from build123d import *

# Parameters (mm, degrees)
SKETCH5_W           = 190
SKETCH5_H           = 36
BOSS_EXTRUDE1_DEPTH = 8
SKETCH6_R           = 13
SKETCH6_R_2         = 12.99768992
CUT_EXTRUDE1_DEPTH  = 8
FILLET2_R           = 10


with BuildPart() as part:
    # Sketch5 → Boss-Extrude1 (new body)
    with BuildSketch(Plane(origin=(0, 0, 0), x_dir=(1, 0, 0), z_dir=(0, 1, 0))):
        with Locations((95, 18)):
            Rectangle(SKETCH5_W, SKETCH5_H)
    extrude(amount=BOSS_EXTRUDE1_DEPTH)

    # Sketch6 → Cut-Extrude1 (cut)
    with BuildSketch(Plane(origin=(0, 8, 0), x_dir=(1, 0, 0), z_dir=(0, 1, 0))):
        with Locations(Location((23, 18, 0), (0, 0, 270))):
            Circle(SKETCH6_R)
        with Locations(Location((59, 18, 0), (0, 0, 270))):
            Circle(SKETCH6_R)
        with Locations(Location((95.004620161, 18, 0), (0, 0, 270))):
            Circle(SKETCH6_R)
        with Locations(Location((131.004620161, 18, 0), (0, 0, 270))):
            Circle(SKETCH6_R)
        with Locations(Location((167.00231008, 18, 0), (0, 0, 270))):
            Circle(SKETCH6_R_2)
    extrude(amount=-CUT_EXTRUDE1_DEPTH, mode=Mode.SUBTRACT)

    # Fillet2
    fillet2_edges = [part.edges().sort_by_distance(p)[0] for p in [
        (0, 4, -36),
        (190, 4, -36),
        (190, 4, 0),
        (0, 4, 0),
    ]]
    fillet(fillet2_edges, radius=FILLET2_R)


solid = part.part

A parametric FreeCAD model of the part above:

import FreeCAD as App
import Part
import Sketcher
Q = App.Units.Quantity


def edges_at(feature, points):
    """Names of the edges that pass closest to the given points."""
    edges = feature.Shape.Edges
    near = lambda p: min(range(len(edges)), key=lambda i: edges[i].distToShape(Part.Vertex(*p))[0])
    return sorted({f"Edge{near(p) + 1}" for p in points})


def add_polygon(sketch, points):
    """Adds a closed chain of lines whose ends are joined by coincident constraints."""
    first, n = sketch.GeometryCount, len(points)
    for a, b in zip(points, points[1:] + points[:1]):
        sketch.addGeometry(Part.LineSegment(App.Vector(*a, 0), App.Vector(*b, 0)), False)
    for i in range(n):
        sketch.addConstraint(Sketcher.Constraint("Coincident", first + i, 2, first + (i + 1) % n, 1))

doc = App.newDocument("Part")
body = doc.addObject("PartDesign::Body", "Body")

# Sketch on XZ plane
sketch1 = body.newObject("Sketcher::SketchObject", "Sketch")
sketch1.AttachmentSupport = (doc.getObject("XZ_Plane"), [""])
sketch1.MapMode = "FlatFace"
add_polygon(sketch1, [(0, -36), (0, 0), (190, 0), (190, -36)])  # lines 0-3
sketch1.addConstraint(Sketcher.Constraint("Vertical", 0))
sketch1.addConstraint(Sketcher.Constraint("Horizontal", 1))
sketch1.addConstraint(Sketcher.Constraint("Vertical", 2))
sketch1.addConstraint(Sketcher.Constraint("Horizontal", 3))
sketch1.addConstraint(Sketcher.Constraint("Coincident", 0, 2, -1, 1))
sketch1.addConstraint(Sketcher.Constraint("DistanceX", 1, 1, 1, 2, Q("190 mm")))
sketch1.addConstraint(Sketcher.Constraint("DistanceY", 0, 1, 0, 2, Q("36 mm")))
pad1 = body.newObject("PartDesign::Pad", "Pad")
pad1.Profile = sketch1
pad1.Length = 8
pad1.Reversed = True

# Sketch on XZ plane
sketch2 = body.newObject("Sketcher::SketchObject", "Sketch001")
sketch2.AttachmentSupport = (doc.getObject("XZ_Plane"), [""])
sketch2.MapMode = "FlatFace"
sketch2.AttachmentOffset = App.Placement(App.Vector(0, 0, -8), App.Rotation())
sketch2.addGeometry(Part.Circle(App.Vector(23, -18, 0), App.Vector(0, 0, 1), 13), False)
sketch2.addGeometry(Part.Circle(App.Vector(59, -18, 0), App.Vector(0, 0, 1), 13), False)
sketch2.addGeometry(Part.Circle(App.Vector(95, -18, 0), App.Vector(0, 0, 1), 13), False)
sketch2.addGeometry(Part.Circle(App.Vector(131, -18, 0), App.Vector(0, 0, 1), 13), False)
sketch2.addGeometry(Part.Circle(App.Vector(167, -18, 0), App.Vector(0, 0, 1), 13), False)
sketch2.addConstraint(Sketcher.Constraint("Equal", 0, 1))
sketch2.addConstraint(Sketcher.Constraint("Equal", 1, 2))
sketch2.addConstraint(Sketcher.Constraint("Equal", 2, 3))
sketch2.addConstraint(Sketcher.Constraint("Horizontal", 0, 3, 1, 3))
sketch2.addConstraint(Sketcher.Constraint("Horizontal", 1, 3, 2, 3))
sketch2.addConstraint(Sketcher.Constraint("Horizontal", 2, 3, 3, 3))
sketch2.addConstraint(Sketcher.Constraint("Horizontal", 3, 3, 4, 3))
sketch2.addConstraint(Sketcher.Constraint("Diameter", 0, Q("26 mm")))
sketch2.addConstraint(Sketcher.Constraint("DistanceX", -1, 1, 0, 3, Q("23 mm")))
sketch2.addConstraint(Sketcher.Constraint("DistanceY", 0, 3, -1, 1, Q("18 mm")))
sketch2.addConstraint(Sketcher.Constraint("DistanceX", -1, 1, 1, 3, Q("59 mm")))
sketch2.addConstraint(Sketcher.Constraint("DistanceX", 2, 3, 3, 3, Q("36 mm")))
sketch2.addConstraint(Sketcher.Constraint("Diameter", 4, Q("25.99538 mm")))
sketch2.addConstraint(Sketcher.Constraint("DistanceX", -1, 1, 2, 3, Q("95.00462 mm")))
sketch2.addConstraint(Sketcher.Constraint("DistanceX", -1, 1, 4, 3, Q("167.00231 mm")))
pocket1 = body.newObject("PartDesign::Pocket", "Pocket")
pocket1.Profile = sketch2
pocket1.Length = 8
pocket1.Reversed = True
doc.recompute()

fillet = body.newObject("PartDesign::Fillet", "Fillet")
fillet.Base = (pocket1, edges_at(pocket1, [
    (0, 4, -36),
    (190, 4, -36),
    (190, 4, 0),
    (0, 4, 0),
]))
fillet.Radius = 10

doc.recompute()
